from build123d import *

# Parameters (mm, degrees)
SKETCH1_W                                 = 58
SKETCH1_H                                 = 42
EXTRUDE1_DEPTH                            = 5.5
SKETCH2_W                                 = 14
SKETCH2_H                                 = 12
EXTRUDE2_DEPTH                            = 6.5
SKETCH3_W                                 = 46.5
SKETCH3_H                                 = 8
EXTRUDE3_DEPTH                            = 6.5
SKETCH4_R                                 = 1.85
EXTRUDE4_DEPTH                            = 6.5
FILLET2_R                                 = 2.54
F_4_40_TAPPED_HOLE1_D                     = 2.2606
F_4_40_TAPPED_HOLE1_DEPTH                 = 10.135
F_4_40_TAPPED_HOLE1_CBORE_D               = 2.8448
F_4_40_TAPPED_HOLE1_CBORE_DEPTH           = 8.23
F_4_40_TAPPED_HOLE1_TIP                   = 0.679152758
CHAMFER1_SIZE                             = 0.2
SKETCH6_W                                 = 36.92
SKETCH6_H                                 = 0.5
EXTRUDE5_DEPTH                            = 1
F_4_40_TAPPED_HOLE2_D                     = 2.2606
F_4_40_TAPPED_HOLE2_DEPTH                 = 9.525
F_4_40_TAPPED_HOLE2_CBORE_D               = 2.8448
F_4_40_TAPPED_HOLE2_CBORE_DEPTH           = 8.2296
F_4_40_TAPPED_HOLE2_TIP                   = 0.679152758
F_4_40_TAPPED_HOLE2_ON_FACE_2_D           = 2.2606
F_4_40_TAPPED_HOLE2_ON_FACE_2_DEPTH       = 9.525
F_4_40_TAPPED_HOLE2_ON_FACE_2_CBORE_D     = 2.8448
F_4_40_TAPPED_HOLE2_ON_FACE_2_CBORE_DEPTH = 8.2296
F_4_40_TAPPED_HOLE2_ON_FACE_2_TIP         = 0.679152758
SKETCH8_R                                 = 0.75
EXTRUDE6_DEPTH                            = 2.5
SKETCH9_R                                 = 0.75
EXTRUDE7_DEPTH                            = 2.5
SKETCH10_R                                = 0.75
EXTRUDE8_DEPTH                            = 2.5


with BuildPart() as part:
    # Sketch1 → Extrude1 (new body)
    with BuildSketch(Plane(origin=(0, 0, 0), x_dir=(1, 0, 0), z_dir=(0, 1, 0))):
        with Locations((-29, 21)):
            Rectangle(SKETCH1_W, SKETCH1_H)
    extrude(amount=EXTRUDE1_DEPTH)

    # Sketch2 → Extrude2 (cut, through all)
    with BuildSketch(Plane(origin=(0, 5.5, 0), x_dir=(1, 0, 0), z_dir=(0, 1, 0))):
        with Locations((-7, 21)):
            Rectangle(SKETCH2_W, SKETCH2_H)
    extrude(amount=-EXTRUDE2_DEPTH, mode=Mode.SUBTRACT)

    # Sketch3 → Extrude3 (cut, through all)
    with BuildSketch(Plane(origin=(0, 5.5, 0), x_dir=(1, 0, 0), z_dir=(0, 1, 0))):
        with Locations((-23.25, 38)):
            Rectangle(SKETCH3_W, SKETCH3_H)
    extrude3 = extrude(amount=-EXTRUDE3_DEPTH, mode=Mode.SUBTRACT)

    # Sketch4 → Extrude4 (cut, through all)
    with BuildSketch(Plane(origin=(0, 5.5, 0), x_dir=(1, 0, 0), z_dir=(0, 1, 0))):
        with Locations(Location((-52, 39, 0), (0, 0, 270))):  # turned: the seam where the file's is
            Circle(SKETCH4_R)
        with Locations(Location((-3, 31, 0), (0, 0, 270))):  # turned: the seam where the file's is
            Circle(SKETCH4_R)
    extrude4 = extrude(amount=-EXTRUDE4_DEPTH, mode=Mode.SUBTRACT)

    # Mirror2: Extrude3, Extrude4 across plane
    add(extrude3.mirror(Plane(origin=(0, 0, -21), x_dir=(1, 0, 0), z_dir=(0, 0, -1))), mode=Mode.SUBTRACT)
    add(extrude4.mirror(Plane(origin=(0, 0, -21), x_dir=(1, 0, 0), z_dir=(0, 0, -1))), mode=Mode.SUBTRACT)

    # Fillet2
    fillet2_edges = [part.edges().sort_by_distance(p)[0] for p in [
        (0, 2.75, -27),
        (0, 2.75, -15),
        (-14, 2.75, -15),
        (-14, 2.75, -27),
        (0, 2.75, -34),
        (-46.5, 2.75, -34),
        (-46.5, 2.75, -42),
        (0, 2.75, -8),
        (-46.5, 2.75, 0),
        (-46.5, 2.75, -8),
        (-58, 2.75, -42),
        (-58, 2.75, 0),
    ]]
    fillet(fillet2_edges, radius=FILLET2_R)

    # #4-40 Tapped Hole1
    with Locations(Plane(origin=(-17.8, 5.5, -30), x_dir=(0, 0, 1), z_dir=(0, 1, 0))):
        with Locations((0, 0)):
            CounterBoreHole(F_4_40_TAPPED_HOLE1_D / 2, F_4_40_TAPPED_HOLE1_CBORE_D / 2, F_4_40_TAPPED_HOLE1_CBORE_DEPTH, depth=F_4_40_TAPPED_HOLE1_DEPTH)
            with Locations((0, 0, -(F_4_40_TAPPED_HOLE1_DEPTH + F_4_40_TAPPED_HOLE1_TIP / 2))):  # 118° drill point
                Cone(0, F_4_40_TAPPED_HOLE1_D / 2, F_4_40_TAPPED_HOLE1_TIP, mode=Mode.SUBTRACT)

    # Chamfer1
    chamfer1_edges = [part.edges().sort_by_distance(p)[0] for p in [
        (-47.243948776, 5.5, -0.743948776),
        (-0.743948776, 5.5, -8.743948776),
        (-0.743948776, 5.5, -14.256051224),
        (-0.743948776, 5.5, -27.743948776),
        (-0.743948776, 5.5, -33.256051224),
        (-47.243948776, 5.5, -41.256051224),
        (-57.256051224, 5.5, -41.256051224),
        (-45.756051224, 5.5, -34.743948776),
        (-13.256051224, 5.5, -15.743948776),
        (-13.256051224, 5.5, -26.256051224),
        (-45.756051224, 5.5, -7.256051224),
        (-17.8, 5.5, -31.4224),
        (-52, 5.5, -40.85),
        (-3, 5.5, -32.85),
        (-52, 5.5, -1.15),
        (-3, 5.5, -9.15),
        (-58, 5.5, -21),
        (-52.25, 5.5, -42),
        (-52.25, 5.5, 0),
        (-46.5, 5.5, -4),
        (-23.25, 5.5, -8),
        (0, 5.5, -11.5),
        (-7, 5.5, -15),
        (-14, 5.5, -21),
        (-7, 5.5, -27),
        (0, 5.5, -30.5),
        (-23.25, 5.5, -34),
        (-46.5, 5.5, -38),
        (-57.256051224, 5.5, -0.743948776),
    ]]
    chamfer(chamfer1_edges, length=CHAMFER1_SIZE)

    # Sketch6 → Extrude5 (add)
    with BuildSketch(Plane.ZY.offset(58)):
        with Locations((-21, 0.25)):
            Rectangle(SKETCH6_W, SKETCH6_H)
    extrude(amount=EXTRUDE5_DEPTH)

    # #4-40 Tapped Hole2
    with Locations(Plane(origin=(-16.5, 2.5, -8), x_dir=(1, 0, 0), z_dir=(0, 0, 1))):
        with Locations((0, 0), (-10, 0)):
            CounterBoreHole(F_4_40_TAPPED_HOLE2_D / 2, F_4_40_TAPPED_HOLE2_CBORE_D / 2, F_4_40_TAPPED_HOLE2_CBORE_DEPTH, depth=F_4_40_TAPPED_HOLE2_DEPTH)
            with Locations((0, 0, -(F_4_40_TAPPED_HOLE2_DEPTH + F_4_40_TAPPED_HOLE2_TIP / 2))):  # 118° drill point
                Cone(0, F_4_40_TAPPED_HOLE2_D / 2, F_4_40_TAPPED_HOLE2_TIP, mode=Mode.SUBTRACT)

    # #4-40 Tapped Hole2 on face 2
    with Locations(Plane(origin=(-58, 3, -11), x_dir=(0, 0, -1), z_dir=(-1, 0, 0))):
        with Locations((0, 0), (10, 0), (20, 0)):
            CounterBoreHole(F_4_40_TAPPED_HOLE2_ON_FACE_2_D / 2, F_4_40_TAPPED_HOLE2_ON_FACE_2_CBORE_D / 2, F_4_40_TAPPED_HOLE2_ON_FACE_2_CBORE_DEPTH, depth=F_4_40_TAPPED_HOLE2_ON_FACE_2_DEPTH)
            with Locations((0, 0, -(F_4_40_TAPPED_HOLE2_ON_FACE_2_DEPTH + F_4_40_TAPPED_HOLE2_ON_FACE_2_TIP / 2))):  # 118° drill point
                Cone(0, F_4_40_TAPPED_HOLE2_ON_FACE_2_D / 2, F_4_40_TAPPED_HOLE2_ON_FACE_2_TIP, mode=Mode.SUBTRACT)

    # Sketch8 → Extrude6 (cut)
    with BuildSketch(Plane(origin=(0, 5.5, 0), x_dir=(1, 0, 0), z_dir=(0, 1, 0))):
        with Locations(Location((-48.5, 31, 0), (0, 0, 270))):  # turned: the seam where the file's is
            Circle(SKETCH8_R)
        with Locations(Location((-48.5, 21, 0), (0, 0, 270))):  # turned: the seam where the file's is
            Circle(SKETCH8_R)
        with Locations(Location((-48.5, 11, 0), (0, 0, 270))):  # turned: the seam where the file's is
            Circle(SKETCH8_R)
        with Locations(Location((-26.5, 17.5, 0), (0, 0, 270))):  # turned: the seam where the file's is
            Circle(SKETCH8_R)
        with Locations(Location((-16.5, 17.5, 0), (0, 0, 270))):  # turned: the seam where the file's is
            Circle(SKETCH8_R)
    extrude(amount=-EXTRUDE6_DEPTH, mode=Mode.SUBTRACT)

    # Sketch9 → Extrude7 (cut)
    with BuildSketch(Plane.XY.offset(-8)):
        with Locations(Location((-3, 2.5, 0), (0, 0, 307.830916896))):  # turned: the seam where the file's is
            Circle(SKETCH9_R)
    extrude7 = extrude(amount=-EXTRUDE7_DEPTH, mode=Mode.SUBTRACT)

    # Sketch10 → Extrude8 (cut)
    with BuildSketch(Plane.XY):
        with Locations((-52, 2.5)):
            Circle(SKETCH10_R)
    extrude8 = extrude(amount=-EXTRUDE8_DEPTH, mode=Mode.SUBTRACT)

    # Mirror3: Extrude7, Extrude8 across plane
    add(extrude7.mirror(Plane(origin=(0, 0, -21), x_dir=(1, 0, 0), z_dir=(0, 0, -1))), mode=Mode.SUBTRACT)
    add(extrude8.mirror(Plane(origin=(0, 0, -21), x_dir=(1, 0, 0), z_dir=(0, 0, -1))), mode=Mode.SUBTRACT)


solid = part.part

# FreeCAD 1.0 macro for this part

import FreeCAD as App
import Part
import Sketcher
Q = App.Units.Quantity


def edges_at(feature, points):
    """Names of the edges that pass closest to the given points."""
    edges = feature.Shape.Edges
    near = lambda p: min(range(len(edges)), key=lambda i: edges[i].distToShape(Part.Vertex(*p))[0])
    return sorted({f"Edge{near(p) + 1}" for p in points})

doc = App.newDocument("Part")
params = doc.addObject("Spreadsheet::Sheet", "Params")
for row, (alias, value) in enumerate([
    ("sketch1_width", "58 mm"),
    ("sketch1_height", "42 mm"),
    ("pad1_length", "5.5 mm"),
    ("sketch2_width", "14 mm"),
    ("sketch2_height", "12 mm"),
    ("sketch3_height", "8 mm"),
    ("sketch3_width", "46.5 mm"),
    ("sketch4_diameter", "3.7 mm"),
    ("fillet_radius", "2.54 mm"),
    ("hole_diameter", "2.2606 mm"),
    ("hole_depth", "10.135 mm"),
    ("hole_cbore_diameter", "2.8448 mm"),
    ("hole_cbore_depth", "8.23 mm"),
    ("chamfer_size", "0.2 mm"),
    ("sketch6_width", "0.5 mm"),
    ("sketch6_height", "36.92 mm"),
    ("pad2_length", "1 mm"),
    ("hole2_diameter", "2.2606 mm"),
    ("hole2_depth", "9.525 mm"),
    ("hole2_cbore_diameter", "2.8448 mm"),
    ("hole2_cbore_depth", "8.2296 mm"),
    ("hole3_diameter", "2.2606 mm"),
    ("hole3_depth", "9.525 mm"),
    ("hole3_cbore_diameter", "2.8448 mm"),
    ("hole3_cbore_depth", "8.2296 mm"),
    ("sketch9_diameter", "1.5 mm"),
    ("pocket4_length", "2.5 mm"),
    ("sketch10_diameter", "1.5 mm"),
    ("pocket5_length", "2.5 mm"),
    ("sketch11_diameter", "1.5 mm"),
    ("pocket6_length", "2.5 mm"),
], start=1):
    params.set(f"A{row}", alias)
    params.set(f"B{row}", "=" + value)
    params.setAlias(f"B{row}", alias)

body = doc.addObject("PartDesign::Body", "Body")

sketch1 = body.newObject("Sketcher::SketchObject", "Sketch")
sketch1.AttachmentSupport = (doc.getObject("XZ_Plane"), [""])
sketch1.MapMode = "FlatFace"
sketch1.addGeometry([
    Part.LineSegment(App.Vector(-58, -42, 0), App.Vector(-58, 0, 0)),
    Part.LineSegment(App.Vector(-58, 0, 0), App.Vector(0, 0, 0)),
    Part.LineSegment(App.Vector(0, 0, 0), App.Vector(0, -42, 0)),
    Part.LineSegment(App.Vector(0, -42, 0), App.Vector(-58, -42, 0)),
], False)
sketch1.addConstraint([
    Sketcher.Constraint("Coincident", 0, 2, 1, 1),
    Sketcher.Constraint("Coincident", 1, 2, 2, 1),
    Sketcher.Constraint("Coincident", 2, 2, 3, 1),
    Sketcher.Constraint("Coincident", 3, 2, 0, 1),
    Sketcher.Constraint("Vertical", 0),
    Sketcher.Constraint("Horizontal", 1),
    Sketcher.Constraint("Vertical", 2),
    Sketcher.Constraint("Horizontal", 3),
    Sketcher.Constraint("Coincident", 1, 2, -1, 1),
    Sketcher.Constraint("DistanceX", 1, 1, 1, 2, Q("58 mm")),
    Sketcher.Constraint("DistanceY", 0, 1, 0, 2, Q("42 mm")),
])
sketch1.setExpression("Constraints[9]", "Params.sketch1_width")
sketch1.setExpression("Constraints[10]", "Params.sketch1_height")
pad1 = body.newObject("PartDesign::Pad", "Pad")
pad1.Profile = sketch1
pad1.setExpression("Length", "Params.pad1_length")
pad1.Reversed = True

sketch2 = body.newObject("Sketcher::SketchObject", "Sketch001")
sketch2.AttachmentSupport = (doc.getObject("XZ_Plane"), [""])
sketch2.MapMode = "FlatFace"
sketch2.AttachmentOffset = App.Placement(App.Vector(0, 0, -5.5), App.Rotation())
sketch2.addGeometry([
    Part.LineSegment(App.Vector(-14, -27, 0), App.Vector(-14, -15, 0)),
    Part.LineSegment(App.Vector(-14, -15, 0), App.Vector(0, -15, 0)),
    Part.LineSegment(App.Vector(0, -15, 0), App.Vector(0, -27, 0)),
    Part.LineSegment(App.Vector(0, -27, 0), App.Vector(-14, -27, 0)),
], False)
sketch2.addConstraint([
    Sketcher.Constraint("Coincident", 0, 2, 1, 1),
    Sketcher.Constraint("Coincident", 1, 2, 2, 1),
    Sketcher.Constraint("Coincident", 2, 2, 3, 1),
    Sketcher.Constraint("Coincident", 3, 2, 0, 1),
    Sketcher.Constraint("Vertical", 0),
    Sketcher.Constraint("Horizontal", 1),
    Sketcher.Constraint("Vertical", 2),
    Sketcher.Constraint("Horizontal", 3),
    Sketcher.Constraint("PointOnObject", 1, 2, -2),
    Sketcher.Constraint("DistanceX", 1, 1, 1, 2, Q("14 mm")),
    Sketcher.Constraint("DistanceY", 0, 1, 0, 2, Q("12 mm")),
    Sketcher.Constraint("DistanceY", 0, 2, -1, 1, Q("15 mm")),
])
sketch2.setExpression("Constraints[9]", "Params.sketch2_width")
sketch2.setExpression("Constraints[10]", "Params.sketch2_height")
pocket1 = body.newObject("PartDesign::Pocket", "Pocket")
pocket1.Profile = sketch2
pocket1.Type = "ThroughAll"
pocket1.Reversed = True

sketch3 = body.newObject("Sketcher::SketchObject", "Sketch002")
sketch3.AttachmentSupport = (doc.getObject("XZ_Plane"), [""])
sketch3.MapMode = "FlatFace"
sketch3.AttachmentOffset = App.Placement(App.Vector(0, 0, -5.5), App.Rotation())
sketch3.addGeometry([
    Part.LineSegment(App.Vector(-46, -42, 0), App.Vector(-46, -34, 0)),
    Part.LineSegment(App.Vector(-46, -34, 0), App.Vector(0, -34, 0)),
    Part.LineSegment(App.Vector(0, -34, 0), App.Vector(0, -42, 0)),
    Part.LineSegment(App.Vector(0, -42, 0), App.Vector(-46, -42, 0)),
], False)
sketch3.addConstraint([
    Sketcher.Constraint("Coincident", 0, 2, 1, 1),
    Sketcher.Constraint("Coincident", 1, 2, 2, 1),
    Sketcher.Constraint("Coincident", 2, 2, 3, 1),
    Sketcher.Constraint("Coincident", 3, 2, 0, 1),
    Sketcher.Constraint("Vertical", 0),
    Sketcher.Constraint("Horizontal", 1),
    Sketcher.Constraint("Vertical", 2),
    Sketcher.Constraint("Horizontal", 3),
    Sketcher.Constraint("PointOnObject", 1, 2, -2),
    Sketcher.Constraint("DistanceY", 0, 1, 0, 2, Q("8 mm")),
    Sketcher.Constraint("DistanceX", 1, 1, 1, 2, Q("46.5 mm")),
    Sketcher.Constraint("DistanceY", 0, 2, -1, 1, Q("34 mm")),
])
sketch3.setExpression("Constraints[9]", "Params.sketch3_height")
sketch3.setExpression("Constraints[10]", "Params.sketch3_width")
pocket2 = body.newObject("PartDesign::Pocket", "Pocket001")
pocket2.Profile = sketch3
pocket2.Type = "ThroughAll"
pocket2.Reversed = True

sketch4 = body.newObject("Sketcher::SketchObject", "Sketch003")
sketch4.AttachmentSupport = (doc.getObject("XZ_Plane"), [""])
sketch4.MapMode = "FlatFace"
sketch4.AttachmentOffset = App.Placement(App.Vector(0, 0, -5.5), App.Rotation())
sketch4.addGeometry([
    Part.Circle(App.Vector(-52, -39, 0), App.Vector(0, 0, 1), 1.9),
    Part.Circle(App.Vector(-3, -31, 0), App.Vector(0, 0, 1), 1.9),
], False)
sketch4.addConstraint([
    Sketcher.Constraint("Equal", 0, 1),
    Sketcher.Constraint("Diameter", 0, Q("3.7 mm")),
    Sketcher.Constraint("DistanceX", 0, 3, -1, 1, Q("52 mm")),
    Sketcher.Constraint("DistanceY", 0, 3, -1, 1, Q("39 mm")),
    Sketcher.Constraint("DistanceX", 1, 3, -1, 1, Q("3 mm")),
    Sketcher.Constraint("DistanceY", 1, 3, -1, 1, Q("31 mm")),
])
sketch4.setExpression("Constraints[1]", "Params.sketch4_diameter")
pocket3 = body.newObject("PartDesign::Pocket", "Pocket002")
pocket3.Profile = sketch4
pocket3.Type = "ThroughAll"
pocket3.Reversed = True
doc.recompute()

datumplane = body.newObject("PartDesign::Plane", "DatumPlane")
datumplane.AttachmentSupport = (doc.getObject("XY_Plane"), [""])
datumplane.MapMode = "FlatFace"
datumplane.AttachmentOffset = App.Placement(App.Vector(0, 0, -21), App.Rotation())
mirrored = body.newObject("PartDesign::Mirrored", "Mirrored")
mirrored.Originals = [pocket2, pocket3]
mirrored.MirrorPlane = (datumplane, [""])
body.Tip = mirrored
doc.recompute()

fillet = body.newObject("PartDesign::Fillet", "Fillet")
fillet.Base = (mirrored, edges_at(mirrored, [
    (0, 2.75, -27),
    (0, 2.75, -15),
    (-14, 2.75, -15),
    (-14, 2.75, -27),
    (0, 2.75, -34),
    (-46.5, 2.75, -34),
    (-46.5, 2.75, -42),
    (0, 2.75, -8),
    (-46.5, 2.75, 0),
    (-46.5, 2.75, -8),
    (-58, 2.75, -42),
    (-58, 2.75, 0),
]))
fillet.setExpression("Radius", "Params.fillet_radius")

sketch5 = body.newObject("Sketcher::SketchObject", "Sketch004")
sketch5.AttachmentSupport = (doc.getObject("XZ_Plane"), [""])
sketch5.MapMode = "FlatFace"
sketch5.AttachmentOffset = App.Placement(App.Vector(0, 0, -5.5), App.Rotation())
sketch5.addGeometry(Part.Circle(App.Vector(-17.8, -30, 0), App.Vector(0, 0, 1), 1.1), False)
sketch5.addConstraint([
    Sketcher.Constraint("DistanceY", 0, 3, -1, 1, Q("30 mm")),
    Sketcher.Constraint("Diameter", 0, Q("2.2606 mm")),
    Sketcher.Constraint("DistanceX", 0, 3, -1, 1, Q("17.8 mm")),
])
doc.recompute()
hole = body.newObject("PartDesign::Hole", "Hole")
hole.Profile = sketch5
hole.ThreadType = "None"
hole.setExpression("Diameter", "Params.hole_diameter")
hole.DepthType = "Dimension"
hole.setExpression("Depth", "Params.hole_depth")
hole.DrillPoint = "Angled"
hole.DrillPointAngle = 118
hole.HoleCutType = "Counterbore"
hole.setExpression("HoleCutDiameter", "Params.hole_cbore_diameter")
hole.setExpression("HoleCutDepth", "Params.hole_cbore_depth")
hole.Reversed = True
doc.recompute()

chamfer = body.newObject("PartDesign::Chamfer", "Chamfer")
chamfer.Base = (hole, edges_at(hole, [
    (-47.244, 5.5, -0.744),
    (-0.744, 5.5, -8.744),
    (-0.744, 5.5, -14.256),
    (-0.744, 5.5, -27.744),
    (-0.744, 5.5, -33.256),
    (-47.244, 5.5, -41.256),
    (-57.256, 5.5, -41.256),
    (-45.756, 5.5, -34.744),
    (-13.256, 5.5, -15.744),
    (-13.256, 5.5, -26.256),
    (-45.756, 5.5, -7.256),
    (-17.8, 5.5, -31.422),
    (-52, 5.5, -40.85),
    (-3, 5.5, -32.85),
    (-52, 5.5, -1.15),
    (-3, 5.5, -9.15),
    (-58, 5.5, -21),
    (-52.25, 5.5, -42),
    (-52.25, 5.5, 0),
    (-46.5, 5.5, -4),
    (-23.25, 5.5, -8),
    (0, 5.5, -11.5),
    (-7, 5.5, -15),
    (-14, 5.5, -21),
    (-7, 5.5, -27),
    (0, 5.5, -30.5),
    (-23.25, 5.5, -34),
    (-46.5, 5.5, -38),
    (-57.256, 5.5, -0.744),
]))
chamfer.setExpression("Size", "Params.chamfer_size")

sketch6 = body.newObject("Sketcher::SketchObject", "Sketch005")
sketch6.AttachmentSupport = (doc.getObject("YZ_Plane"), [""])
sketch6.MapMode = "FlatFace"
sketch6.AttachmentOffset = App.Placement(App.Vector(0, 0, -58), App.Rotation())
sketch6.addGeometry([
    Part.LineSegment(App.Vector(0.5, -39.5, 0), App.Vector(0, -39.5, 0)),
    Part.LineSegment(App.Vector(0, -39.5, 0), App.Vector(0, -2.5, 0)),
    Part.LineSegment(App.Vector(0, -2.5, 0), App.Vector(0.5, -2.5, 0)),
    Part.LineSegment(App.Vector(0.5, -2.5, 0), App.Vector(0.5, -39.5, 0)),
], False)
sketch6.addConstraint([
    Sketcher.Constraint("Coincident", 0, 2, 1, 1),
    Sketcher.Constraint("Coincident", 1, 2, 2, 1),
    Sketcher.Constraint("Coincident", 2, 2, 3, 1),
    Sketcher.Constraint("Coincident", 3, 2, 0, 1),
    Sketcher.Constraint("Horizontal", 0),
    Sketcher.Constraint("Vertical", 1),
    Sketcher.Constraint("Horizontal", 2),
    Sketcher.Constraint("Vertical", 3),
    Sketcher.Constraint("PointOnObject", 0, 2, -2),
    Sketcher.Constraint("DistanceX", 0, 2, 0, 1, Q("0.5 mm")),
    Sketcher.Constraint("DistanceY", 1, 1, 1, 2, Q("36.92 mm")),
    Sketcher.Constraint("DistanceY", 0, 2, -1, 1, Q("39.46 mm")),
])
sketch6.setExpression("Constraints[9]", "Params.sketch6_width")
sketch6.setExpression("Constraints[10]", "Params.sketch6_height")
pad2 = body.newObject("PartDesign::Pad", "Pad001")
pad2.Profile = sketch6
pad2.setExpression("Length", "Params.pad2_length")
pad2.Reversed = True

sketch7 = body.newObject("Sketcher::SketchObject", "Sketch006")
sketch7.AttachmentSupport = (doc.getObject("XY_Plane"), [""])
sketch7.MapMode = "FlatFace"
sketch7.AttachmentOffset = App.Placement(App.Vector(0, 0, -8), App.Rotation())
sketch7.addGeometry([
    Part.Circle(App.Vector(-16.5, 2.5, 0), App.Vector(0, 0, 1), 1.1),
    Part.Circle(App.Vector(-26.5, 2.5, 0), App.Vector(0, 0, 1), 1.1),
], False)
sketch7.addConstraint([
    Sketcher.Constraint("Equal", 0, 1),
    Sketcher.Constraint("Horizontal", 0, 3, 1, 3),
    Sketcher.Constraint("DistanceX", 1, 3, 0, 3, Q("10 mm")),
    Sketcher.Constraint("Diameter", 0, Q("2.2606 mm")),
    Sketcher.Constraint("DistanceX", 0, 3, -1, 1, Q("16.5 mm")),
    Sketcher.Constraint("DistanceY", -1, 1, 0, 3, Q("2.5 mm")),
])
doc.recompute()
hole2 = body.newObject("PartDesign::Hole", "Hole001")
hole2.Profile = sketch7
hole2.ThreadType = "None"
hole2.setExpression("Diameter", "Params.hole2_diameter")
hole2.DepthType = "Dimension"
hole2.setExpression("Depth", "Params.hole2_depth")
hole2.DrillPoint = "Angled"
hole2.DrillPointAngle = 118
hole2.HoleCutType = "Counterbore"
hole2.setExpression("HoleCutDiameter", "Params.hole2_cbore_diameter")
hole2.setExpression("HoleCutDepth", "Params.hole2_cbore_depth")

sketch8 = body.newObject("Sketcher::SketchObject", "Sketch007")
sketch8.AttachmentSupport = (doc.getObject("YZ_Plane"), [""])
sketch8.MapMode = "FlatFace"
sketch8.AttachmentOffset = App.Placement(App.Vector(0, 0, -58), App.Rotation())
sketch8.addGeometry([
    Part.Circle(App.Vector(3, -11, 0), App.Vector(0, 0, 1), 1.1),
    Part.Circle(App.Vector(3, -21, 0), App.Vector(0, 0, 1), 1.1),
    Part.Circle(App.Vector(3, -31, 0), App.Vector(0, 0, 1), 1.1),
], False)
sketch8.addConstraint([
    Sketcher.Constraint("Equal", 0, 1),
    Sketcher.Constraint("Equal", 1, 2),
    Sketcher.Constraint("Vertical", 0, 3, 1, 3),
    Sketcher.Constraint("Vertical", 1, 3, 2, 3),
    Sketcher.Constraint("DistanceX", -1, 1, 0, 3, Q("3 mm")),
    Sketcher.Constraint("DistanceY", 0, 3, -1, 1, Q("11 mm")),
    Sketcher.Constraint("DistanceY", 1, 3, -1, 1, Q("21 mm")),
    Sketcher.Constraint("DistanceY", 2, 3, -1, 1, Q("31 mm")),
    Sketcher.Constraint("Diameter", 0, Q("2.2606 mm")),
])
doc.recompute()
hole3 = body.newObject("PartDesign::Hole", "Hole002")
hole3.Profile = sketch8
hole3.ThreadType = "None"
hole3.setExpression("Diameter", "Params.hole3_diameter")
hole3.DepthType = "Dimension"
hole3.setExpression("Depth", "Params.hole3_depth")
hole3.DrillPoint = "Angled"
hole3.DrillPointAngle = 118
hole3.HoleCutType = "Counterbore"
hole3.setExpression("HoleCutDiameter", "Params.hole3_cbore_diameter")
hole3.setExpression("HoleCutDepth", "Params.hole3_cbore_depth")
hole3.Reversed = True

sketch9 = body.newObject("Sketcher::SketchObject", "Sketch008")
sketch9.AttachmentSupport = (doc.getObject("XZ_Plane"), [""])
sketch9.MapMode = "FlatFace"
sketch9.AttachmentOffset = App.Placement(App.Vector(0, 0, -5.5), App.Rotation())
sketch9.addGeometry([
    Part.Circle(App.Vector(-48.5, -31, 0), App.Vector(0, 0, 1), 0.8),
    Part.Circle(App.Vector(-48.5, -21, 0), App.Vector(0, 0, 1), 0.8),
    Part.Circle(App.Vector(-48.5, -11, 0), App.Vector(0, 0, 1), 0.8),
    Part.Circle(App.Vector(-26.5, -17.5, 0), App.Vector(0, 0, 1), 0.8),
    Part.Circle(App.Vector(-16.5, -17.5, 0), App.Vector(0, 0, 1), 0.8),
], False)
sketch9.addConstraint([
    Sketcher.Constraint("Equal", 0, 1),
    Sketcher.Constraint("Equal", 1, 2),
    Sketcher.Constraint("Equal", 2, 3),
    Sketcher.Constraint("Equal", 3, 4),
    Sketcher.Constraint("Horizontal", 3, 3, 4, 3),
    Sketcher.Constraint("Vertical", 0, 3, 1, 3),
    Sketcher.Constraint("Vertical", 1, 3, 2, 3),
    Sketcher.Constraint("Diameter", 0, Q("1.5 mm")),
    Sketcher.Constraint("DistanceY", 0, 3, -1, 1, Q("31 mm")),
    Sketcher.Constraint("DistanceY", 1, 3, -1, 1, Q("21 mm")),
    Sketcher.Constraint("DistanceY", 2, 3, -1, 1, Q("11 mm")),
    Sketcher.Constraint("DistanceX", 1, 3, 3, 3, Q("22 mm")),
    Sketcher.Constraint("DistanceX", 3, 3, 4, 3, Q("10 mm")),
    Sketcher.Constraint("DistanceX", 0, 3, -1, 1, Q("48.5 mm")),
    Sketcher.Constraint("DistanceY", 3, 3, -1, 1, Q("17.5 mm")),
])
sketch9.setExpression("Constraints[7]", "Params.sketch9_diameter")
pocket4 = body.newObject("PartDesign::Pocket", "Pocket003")
pocket4.Profile = sketch9
pocket4.setExpression("Length", "Params.pocket4_length")
pocket4.Reversed = True

sketch10 = body.newObject("Sketcher::SketchObject", "Sketch009")
sketch10.AttachmentSupport = (doc.getObject("XY_Plane"), [""])
sketch10.MapMode = "FlatFace"
sketch10.AttachmentOffset = App.Placement(App.Vector(0, 0, -8), App.Rotation())
sketch10.addGeometry(Part.Circle(App.Vector(-3, 2.5, 0), App.Vector(0, 0, 1), 0.8), False)
sketch10.addConstraint([
    Sketcher.Constraint("Diameter", 0, Q("1.5 mm")),
    Sketcher.Constraint("DistanceX", 0, 3, -1, 1, Q("3 mm")),
    Sketcher.Constraint("DistanceY", -1, 1, 0, 3, Q("2.5 mm")),
])
sketch10.setExpression("Constraints[0]", "Params.sketch10_diameter")
pocket5 = body.newObject("PartDesign::Pocket", "Pocket004")
pocket5.Profile = sketch10
pocket5.setExpression("Length", "Params.pocket5_length")

sketch11 = body.newObject("Sketcher::SketchObject", "Sketch010")
sketch11.AttachmentSupport = (doc.getObject("XY_Plane"), [""])
sketch11.MapMode = "FlatFace"
sketch11.addGeometry(Part.Circle(App.Vector(-52, 2.5, 0), App.Vector(0, 0, 1), 0.8), False)
sketch11.addConstraint([
    Sketcher.Constraint("Diameter", 0, Q("1.5 mm")),
    Sketcher.Constraint("DistanceX", 0, 3, -1, 1, Q("52 mm")),
    Sketcher.Constraint("DistanceY", -1, 1, 0, 3, Q("2.5 mm")),
])
sketch11.setExpression("Constraints[0]", "Params.sketch11_diameter")
pocket6 = body.newObject("PartDesign::Pocket", "Pocket005")
pocket6.Profile = sketch11
pocket6.setExpression("Length", "Params.pocket6_length")
doc.recompute()

datumplane2 = body.newObject("PartDesign::Plane", "DatumPlane001")
datumplane2.AttachmentSupport = (doc.getObject("XY_Plane"), [""])
datumplane2.MapMode = "FlatFace"
datumplane2.AttachmentOffset = App.Placement(App.Vector(0, 0, -21), App.Rotation())
mirrored2 = body.newObject("PartDesign::Mirrored", "Mirrored001")
mirrored2.Originals = [pocket5, pocket6]
mirrored2.MirrorPlane = (datumplane2, [""])
body.Tip = mirrored2

doc.recompute()
